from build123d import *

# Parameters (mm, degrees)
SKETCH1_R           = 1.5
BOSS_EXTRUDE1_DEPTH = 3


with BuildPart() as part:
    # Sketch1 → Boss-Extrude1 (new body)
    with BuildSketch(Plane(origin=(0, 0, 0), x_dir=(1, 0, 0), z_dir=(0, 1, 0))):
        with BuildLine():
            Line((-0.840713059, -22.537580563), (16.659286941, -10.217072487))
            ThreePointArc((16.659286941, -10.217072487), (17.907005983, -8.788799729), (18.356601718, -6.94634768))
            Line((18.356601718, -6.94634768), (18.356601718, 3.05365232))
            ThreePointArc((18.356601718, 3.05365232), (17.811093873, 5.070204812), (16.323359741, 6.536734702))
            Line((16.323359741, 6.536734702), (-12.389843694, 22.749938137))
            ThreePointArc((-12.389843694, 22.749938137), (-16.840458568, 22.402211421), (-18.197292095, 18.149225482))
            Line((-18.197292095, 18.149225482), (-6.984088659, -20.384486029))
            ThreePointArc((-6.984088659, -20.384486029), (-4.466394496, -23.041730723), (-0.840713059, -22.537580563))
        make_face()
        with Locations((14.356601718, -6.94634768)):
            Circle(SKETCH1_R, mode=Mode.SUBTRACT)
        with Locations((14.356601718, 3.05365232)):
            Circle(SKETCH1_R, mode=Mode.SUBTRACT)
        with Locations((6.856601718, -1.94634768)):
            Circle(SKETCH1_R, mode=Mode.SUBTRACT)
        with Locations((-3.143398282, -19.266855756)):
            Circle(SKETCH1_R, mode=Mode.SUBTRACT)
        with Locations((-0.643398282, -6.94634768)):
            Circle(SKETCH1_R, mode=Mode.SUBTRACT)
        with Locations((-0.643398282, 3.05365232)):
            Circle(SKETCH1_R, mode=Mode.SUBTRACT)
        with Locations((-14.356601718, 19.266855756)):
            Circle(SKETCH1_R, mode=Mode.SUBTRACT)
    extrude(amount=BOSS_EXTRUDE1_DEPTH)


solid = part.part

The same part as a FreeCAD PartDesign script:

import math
import FreeCAD as App
import Part
import Sketcher

doc = App.newDocument("Part")
body = doc.addObject("PartDesign::Body", "Body")

# Sketch on XZ plane
sketch1 = body.newObject("Sketcher::SketchObject", "Sketch")
sketch1.AttachmentSupport = (doc.getObject("XZ_Plane"), [""])
sketch1.MapMode = "FlatFace"
sketch1.addGeometry([
    Part.LineSegment(App.Vector(-0.840713, 22.537581, 0), App.Vector(16.659287, 10.217072, 0)),  # 0
    Part.ArcOfCircle(Part.Circle(App.Vector(14.356602, 6.946348, 0), App.Vector(0, 0, 1), 4), math.radians(0), math.radians(54.853342)),  # 1
    Part.LineSegment(App.Vector(18.356602, 6.946348, 0), App.Vector(18.356602, -3.053652, 0)),  # 2
    Part.ArcOfCircle(Part.Circle(App.Vector(14.356602, -3.053652, 0), App.Vector(0, 0, 1), 4), math.radians(-60.548312), math.radians(0)),  # 3
    Part.LineSegment(App.Vector(16.32336, -6.536735, 0), App.Vector(-12.389844, -22.749938, 0)),  # 4
    Part.ArcOfCircle(Part.Circle(App.Vector(-14.356602, -19.266856, 0), App.Vector(0, 0, 1), 4), math.radians(163.77515), math.radians(299.451689)),  # 5
    Part.LineSegment(App.Vector(-18.197292, -18.149225, 0), App.Vector(-6.984089, 20.384486, 0)),  # 6
    Part.ArcOfCircle(Part.Circle(App.Vector(-3.143398, 19.266856, 0), App.Vector(0, 0, 1), 4), math.radians(54.853342), math.radians(163.77515)),  # 7
    Part.Circle(App.Vector(-3.143398, 19.266856, 0), App.Vector(0, 0, 1), 1.5),  # 8
    Part.Circle(App.Vector(-0.643398, 6.946348, 0), App.Vector(0, 0, 1), 1.5),  # 9
    Part.Circle(App.Vector(6.856602, 1.946348, 0), App.Vector(0, 0, 1), 1.5),  # 10
    Part.Circle(App.Vector(14.356602, 6.946348, 0), App.Vector(0, 0, 1), 1.5),  # 11
    Part.Circle(App.Vector(-0.643398, -3.053652, 0), App.Vector(0, 0, 1), 1.5),  # 12
    Part.Circle(App.Vector(-14.356602, -19.266856, 0), App.Vector(0, 0, 1), 1.5),  # 13
    Part.Circle(App.Vector(14.356602, -3.053652, 0), App.Vector(0, 0, 1), 1.5),  # 14
], False)
sketch1.addConstraint([
    Sketcher.Constraint("Coincident", 0, 2, 1, 2),
    Sketcher.Constraint("Coincident", 1, 1, 2, 1),
    Sketcher.Constraint("Coincident", 2, 2, 3, 2),
    Sketcher.Constraint("Coincident", 3, 1, 4, 1),
    Sketcher.Constraint("Coincident", 4, 2, 5, 2),
    Sketcher.Constraint("Coincident", 5, 1, 6, 1),
    Sketcher.Constraint("Coincident", 6, 2, 7, 2),
    Sketcher.Constraint("Coincident", 7, 1, 0, 1),
    Sketcher.Constraint("Vertical", 2),
    Sketcher.Constraint("Coincident", 8, 3, 7, 3),
    Sketcher.Constraint("Coincident", 11, 3, 1, 3),
    Sketcher.Constraint("Coincident", 13, 3, 5, 3),
    Sketcher.Constraint("Coincident", 14, 3, 3, 3),
    Sketcher.Constraint("Diameter", 8, 3.0),
    Sketcher.Constraint("Diameter", 9, 3.0),
    Sketcher.Constraint("Diameter", 10, 3.0),
    Sketcher.Constraint("Diameter", 11, 3.0),
    Sketcher.Constraint("Diameter", 12, 3.0),
    Sketcher.Constraint("Diameter", 13, 3.0),
    Sketcher.Constraint("Diameter", 14, 3.0),
    Sketcher.Constraint("Radius", 1, 4.0),
    Sketcher.Constraint("Radius", 3, 4.0),
    Sketcher.Constraint("Radius", 5, 4.0),
    Sketcher.Constraint("Radius", 7, 4.0),
    Sketcher.Constraint("DistanceY", 2, 2, 2, 1, 10.0),
    Sketcher.Constraint("DistanceY", 3, 3, 1, 3, 10.0),
    Sketcher.Constraint("DistanceX", 9, 3, 1, 3, 15.0),
    Sketcher.Constraint("DistanceY", 3, 3, 9, 3, 10.0),
    Sketcher.Constraint("DistanceY", 10, 3, 1, 3, 5.0),
    Sketcher.Constraint("DistanceX", 7, 3, 10, 3, 10.0),
    Sketcher.Constraint("DistanceY", 12, 3, 10, 3, 5.0),
    Sketcher.Constraint("DistanceX", 12, 3, 3, 3, 15.0),
    Sketcher.Constraint("DistanceY", 14, 3, 1, 1, 10.0),
    Sketcher.Constraint("DistanceX", 7, 3, 1, 3, 17.5),
    Sketcher.Constraint("DistanceX", 7, 1, 0, 2, 17.5),
    Sketcher.Constraint("DistanceX", -1, 1, 1, 3, 14.356602),
    Sketcher.Constraint("DistanceX", 5, 3, -1, 1, 14.356602),
    Sketcher.Constraint("DistanceX", -1, 1, 3, 1, 16.32336),
    Sketcher.Constraint("DistanceY", 4, 2, -1, 1, 22.749938),
    Sketcher.Constraint("DistanceX", 6, 2, -1, 1, 6.984089),
    Sketcher.Constraint("DistanceY", -1, 1, 7, 1, 22.537581),
    Sketcher.Constraint("DistanceY", 1, 3, 7, 3, 12.320508),
    Sketcher.Constraint("DistanceY", 5, 3, 7, 3, 38.533712),
    Sketcher.Constraint("DistanceX", 5, 3, 4, 2, 1.966758),
    Sketcher.Constraint("DistanceX", 5, 1, 5, 3, 3.84069),
])
pad1 = body.newObject("PartDesign::Pad", "Pad")
pad1.Profile = sketch1
pad1.Length = 3
pad1.Reversed = True

doc.recompute()
